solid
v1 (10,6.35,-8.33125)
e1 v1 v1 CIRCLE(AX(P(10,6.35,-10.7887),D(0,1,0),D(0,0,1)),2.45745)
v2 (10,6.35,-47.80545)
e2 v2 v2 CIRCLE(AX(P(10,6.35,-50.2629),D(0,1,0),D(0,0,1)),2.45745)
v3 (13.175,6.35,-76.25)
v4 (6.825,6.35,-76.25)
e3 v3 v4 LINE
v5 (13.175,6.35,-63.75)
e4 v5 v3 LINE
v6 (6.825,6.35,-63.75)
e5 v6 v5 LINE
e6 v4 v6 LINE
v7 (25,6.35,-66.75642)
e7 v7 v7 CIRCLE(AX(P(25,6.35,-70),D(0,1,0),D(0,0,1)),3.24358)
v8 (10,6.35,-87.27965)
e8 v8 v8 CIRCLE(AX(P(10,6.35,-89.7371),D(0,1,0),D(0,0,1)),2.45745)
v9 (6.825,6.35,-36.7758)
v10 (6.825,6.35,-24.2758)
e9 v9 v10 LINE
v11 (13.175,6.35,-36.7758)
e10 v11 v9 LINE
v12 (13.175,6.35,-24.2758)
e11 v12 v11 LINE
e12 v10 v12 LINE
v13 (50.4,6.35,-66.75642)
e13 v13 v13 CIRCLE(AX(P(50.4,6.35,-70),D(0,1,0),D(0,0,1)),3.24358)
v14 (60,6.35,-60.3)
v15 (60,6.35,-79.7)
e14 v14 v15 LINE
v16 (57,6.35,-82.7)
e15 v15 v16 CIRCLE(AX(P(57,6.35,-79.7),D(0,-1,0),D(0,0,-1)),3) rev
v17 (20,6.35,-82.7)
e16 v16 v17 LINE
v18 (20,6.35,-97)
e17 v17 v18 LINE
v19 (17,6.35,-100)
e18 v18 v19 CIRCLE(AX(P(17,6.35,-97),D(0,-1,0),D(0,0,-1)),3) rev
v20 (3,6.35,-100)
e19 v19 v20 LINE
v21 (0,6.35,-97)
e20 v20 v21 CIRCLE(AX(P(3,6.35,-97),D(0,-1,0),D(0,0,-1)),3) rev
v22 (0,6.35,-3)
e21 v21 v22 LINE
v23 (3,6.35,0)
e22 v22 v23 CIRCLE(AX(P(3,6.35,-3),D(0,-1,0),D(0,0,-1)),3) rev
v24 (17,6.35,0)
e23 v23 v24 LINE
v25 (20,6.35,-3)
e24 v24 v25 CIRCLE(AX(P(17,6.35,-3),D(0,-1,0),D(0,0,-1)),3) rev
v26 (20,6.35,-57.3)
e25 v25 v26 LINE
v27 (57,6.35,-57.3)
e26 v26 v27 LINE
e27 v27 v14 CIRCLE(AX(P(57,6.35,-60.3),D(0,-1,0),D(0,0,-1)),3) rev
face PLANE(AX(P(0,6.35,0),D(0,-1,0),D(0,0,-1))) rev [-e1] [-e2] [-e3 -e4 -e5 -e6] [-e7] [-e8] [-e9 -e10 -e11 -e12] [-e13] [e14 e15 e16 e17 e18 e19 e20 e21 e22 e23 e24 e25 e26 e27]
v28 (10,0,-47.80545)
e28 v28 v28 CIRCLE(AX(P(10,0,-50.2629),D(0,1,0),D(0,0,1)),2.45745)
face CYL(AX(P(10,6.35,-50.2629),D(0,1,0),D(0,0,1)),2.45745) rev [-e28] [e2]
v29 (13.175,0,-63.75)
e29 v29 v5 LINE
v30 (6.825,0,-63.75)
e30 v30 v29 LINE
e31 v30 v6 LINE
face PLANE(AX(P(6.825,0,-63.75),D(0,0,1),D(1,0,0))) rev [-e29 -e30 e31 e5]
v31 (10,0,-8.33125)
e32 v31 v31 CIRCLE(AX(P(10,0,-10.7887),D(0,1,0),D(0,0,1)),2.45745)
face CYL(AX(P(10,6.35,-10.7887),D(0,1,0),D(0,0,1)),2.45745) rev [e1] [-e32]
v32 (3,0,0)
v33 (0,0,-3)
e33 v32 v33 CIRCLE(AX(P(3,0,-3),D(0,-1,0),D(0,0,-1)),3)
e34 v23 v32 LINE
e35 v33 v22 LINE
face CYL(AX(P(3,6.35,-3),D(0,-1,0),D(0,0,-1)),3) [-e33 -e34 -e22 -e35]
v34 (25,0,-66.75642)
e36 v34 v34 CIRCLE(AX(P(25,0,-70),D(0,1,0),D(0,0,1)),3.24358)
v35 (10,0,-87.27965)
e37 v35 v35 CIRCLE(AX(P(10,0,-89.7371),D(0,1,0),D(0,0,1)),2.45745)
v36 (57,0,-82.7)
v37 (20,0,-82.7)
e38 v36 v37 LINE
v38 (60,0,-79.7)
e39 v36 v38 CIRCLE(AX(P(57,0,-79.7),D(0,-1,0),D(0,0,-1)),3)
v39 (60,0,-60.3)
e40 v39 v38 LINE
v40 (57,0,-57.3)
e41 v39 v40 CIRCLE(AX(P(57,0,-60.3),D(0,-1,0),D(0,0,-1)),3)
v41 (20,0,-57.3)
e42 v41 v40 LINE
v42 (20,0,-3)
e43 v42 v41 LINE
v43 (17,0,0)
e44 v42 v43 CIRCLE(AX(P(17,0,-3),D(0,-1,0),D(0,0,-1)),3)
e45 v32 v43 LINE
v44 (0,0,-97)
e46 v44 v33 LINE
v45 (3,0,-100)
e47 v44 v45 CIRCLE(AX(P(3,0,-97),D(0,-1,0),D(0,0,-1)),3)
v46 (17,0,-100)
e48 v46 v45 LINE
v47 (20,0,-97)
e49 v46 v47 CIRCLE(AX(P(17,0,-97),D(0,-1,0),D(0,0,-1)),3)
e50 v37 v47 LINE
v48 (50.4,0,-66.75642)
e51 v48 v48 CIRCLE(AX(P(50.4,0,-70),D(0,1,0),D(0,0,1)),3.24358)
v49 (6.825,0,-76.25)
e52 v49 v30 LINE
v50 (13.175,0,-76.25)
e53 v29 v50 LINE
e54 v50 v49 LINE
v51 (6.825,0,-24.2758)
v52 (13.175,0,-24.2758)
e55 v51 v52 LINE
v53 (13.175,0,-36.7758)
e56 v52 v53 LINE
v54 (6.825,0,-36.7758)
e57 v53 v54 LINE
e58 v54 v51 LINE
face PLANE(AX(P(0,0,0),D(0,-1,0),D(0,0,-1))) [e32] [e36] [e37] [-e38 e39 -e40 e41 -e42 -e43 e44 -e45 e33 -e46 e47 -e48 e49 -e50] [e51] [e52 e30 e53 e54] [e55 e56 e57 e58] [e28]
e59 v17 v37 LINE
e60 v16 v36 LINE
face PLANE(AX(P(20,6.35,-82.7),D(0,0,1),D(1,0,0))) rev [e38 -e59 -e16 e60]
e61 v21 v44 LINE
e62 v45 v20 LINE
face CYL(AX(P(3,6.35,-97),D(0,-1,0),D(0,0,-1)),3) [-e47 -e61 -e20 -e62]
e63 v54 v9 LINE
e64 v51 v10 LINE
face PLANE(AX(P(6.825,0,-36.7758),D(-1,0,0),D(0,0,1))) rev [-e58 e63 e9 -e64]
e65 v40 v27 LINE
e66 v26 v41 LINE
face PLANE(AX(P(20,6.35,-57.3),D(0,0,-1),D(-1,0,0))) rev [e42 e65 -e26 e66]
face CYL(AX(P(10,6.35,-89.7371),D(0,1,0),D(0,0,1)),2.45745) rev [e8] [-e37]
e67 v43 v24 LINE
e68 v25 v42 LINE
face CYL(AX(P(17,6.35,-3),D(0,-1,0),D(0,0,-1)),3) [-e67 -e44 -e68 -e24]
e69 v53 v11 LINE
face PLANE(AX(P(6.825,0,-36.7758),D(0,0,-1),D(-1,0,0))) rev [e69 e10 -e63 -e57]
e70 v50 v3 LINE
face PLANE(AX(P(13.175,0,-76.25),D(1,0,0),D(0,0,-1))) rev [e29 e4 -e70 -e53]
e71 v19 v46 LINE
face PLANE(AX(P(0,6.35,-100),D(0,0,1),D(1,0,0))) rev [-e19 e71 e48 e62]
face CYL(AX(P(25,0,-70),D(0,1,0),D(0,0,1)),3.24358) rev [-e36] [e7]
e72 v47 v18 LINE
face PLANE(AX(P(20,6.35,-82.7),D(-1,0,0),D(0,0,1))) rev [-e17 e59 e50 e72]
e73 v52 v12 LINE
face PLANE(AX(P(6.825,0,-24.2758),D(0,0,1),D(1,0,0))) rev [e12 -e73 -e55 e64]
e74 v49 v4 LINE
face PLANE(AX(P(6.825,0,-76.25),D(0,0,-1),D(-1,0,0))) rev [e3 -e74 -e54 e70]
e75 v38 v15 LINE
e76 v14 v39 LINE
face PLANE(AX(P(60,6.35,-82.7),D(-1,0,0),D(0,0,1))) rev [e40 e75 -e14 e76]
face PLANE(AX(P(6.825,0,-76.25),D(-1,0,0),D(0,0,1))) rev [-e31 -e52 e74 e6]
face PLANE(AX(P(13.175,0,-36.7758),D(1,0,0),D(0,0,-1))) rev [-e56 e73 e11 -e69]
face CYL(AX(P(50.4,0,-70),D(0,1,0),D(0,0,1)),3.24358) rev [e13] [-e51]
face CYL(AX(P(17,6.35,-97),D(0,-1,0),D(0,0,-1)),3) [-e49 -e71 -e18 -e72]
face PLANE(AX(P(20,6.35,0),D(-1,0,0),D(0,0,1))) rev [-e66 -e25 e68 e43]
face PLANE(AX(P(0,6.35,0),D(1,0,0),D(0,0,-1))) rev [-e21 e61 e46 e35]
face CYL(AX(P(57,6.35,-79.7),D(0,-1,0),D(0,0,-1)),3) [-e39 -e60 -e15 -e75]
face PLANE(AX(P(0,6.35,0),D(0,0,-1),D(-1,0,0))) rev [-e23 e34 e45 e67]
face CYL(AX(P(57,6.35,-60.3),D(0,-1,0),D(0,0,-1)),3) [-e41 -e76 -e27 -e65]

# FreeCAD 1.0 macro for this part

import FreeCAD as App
import Part
import Sketcher
from FreeCAD import Vector
Q = App.Units.Quantity


def edges_at(feature, points):
    """Names of the edges that pass closest to the given points."""
    edges = feature.Shape.Edges
    near = lambda p: min(range(len(edges)), key=lambda i: edges[i].distToShape(Part.Vertex(*p))[0])
    return sorted({f"Edge{near(p) + 1}" for p in points})


def add_polygon(sketch, points):
    """Adds a closed chain of lines whose ends are joined by coincident constraints."""
    first, n = sketch.GeometryCount, len(points)
    for a, b in zip(points, points[1:] + points[:1]):
        sketch.addGeometry(Part.LineSegment(App.Vector(*a, 0), App.Vector(*b, 0)), False)
    for i in range(n):
        sketch.addConstraint(Sketcher.Constraint("Coincident", first + i, 2, first + (i + 1) % n, 1))

doc = App.newDocument("Part")
params = doc.addObject("Spreadsheet::Sheet", "Params")
for row, (alias, value) in enumerate([
    ("sketch1_width", "20 mm"),
    ("sketch1_width2", "40 mm"),
    ("sketch1_height", "100 mm"),
    ("sketch1_height2", "57.3 mm"),
    ("sketch1_height3", "25.4 mm"),
    ("pad1_length", "6.35 mm"),
    ("sketch2_height", "12.5 mm"),
    ("sketch2_width", "6.35 mm"),
    ("hole_diameter", "4.9149 mm"),
    ("fillet_radius", "3 mm"),
], start=1):
    params.set(f"A{row}", alias)
    params.set(f"B{row}", "=" + value)
    params.setAlias(f"B{row}", alias)

body = doc.addObject("PartDesign::Body", "Body")

sketch1 = body.newObject("Sketcher::SketchObject", "Sketch")
sketch1.AttachmentSupport = (doc.getObject("XZ_Plane"), [""])
sketch1.MapMode = "FlatFace"
add_polygon(sketch1, [(0, 0), (20, 0), (20, -57.3), (60, -57.3), (60, -82.7), (20, -82.7), (20, -100), (0, -100)])
sketch1.addConstraint([
    Sketcher.Constraint("Horizontal", 0),
    Sketcher.Constraint("Vertical", 1),
    Sketcher.Constraint("Horizontal", 2),
    Sketcher.Constraint("Vertical", 3),
    Sketcher.Constraint("Horizontal", 4),
    Sketcher.Constraint("Vertical", 5),
    Sketcher.Constraint("Horizontal", 6),
    Sketcher.Constraint("Vertical", 7),
    Sketcher.Constraint("Coincident", 7, 2, -1, 1),
    Sketcher.Constraint("Vertical", 1, 2, 4, 2),
    Sketcher.Constraint("DistanceX", 0, 1, 0, 2, Q("20 mm")),
    Sketcher.Constraint("DistanceX", 2, 1, 2, 2, Q("40 mm")),
    Sketcher.Constraint("DistanceY", 7, 1, 7, 2, Q("100 mm")),
    Sketcher.Constraint("DistanceY", 1, 2, 1, 1, Q("57.3 mm")),
    Sketcher.Constraint("DistanceY", 3, 2, 3, 1, Q("25.4 mm")),
])
sketch1.setExpression("Constraints[18]", "Params.sketch1_width")
sketch1.setExpression("Constraints[19]", "Params.sketch1_width2")
sketch1.setExpression("Constraints[20]", "Params.sketch1_height")
sketch1.setExpression("Constraints[21]", "Params.sketch1_height2")
sketch1.setExpression("Constraints[22]", "Params.sketch1_height3")
pad1 = body.newObject("PartDesign::Pad", "Pad")
pad1.Profile = sketch1
pad1.setExpression("Length", "Params.pad1_length")
pad1.Reversed = True

sketch2 = body.newObject("Sketcher::SketchObject", "Sketch001")
sketch2.AttachmentSupport = (doc.getObject("XZ_Plane"), [""])
sketch2.MapMode = "FlatFace"
sketch2.AttachmentOffset = App.Placement(Vector(0, 0, -6.35), App.Rotation())
add_polygon(sketch2, [(6.825, -76.25), (6.825, -63.75), (13.175, -63.75), (13.175, -76.25)])
add_polygon(sketch2, [(6.825, -36.7758), (6.825, -24.2758), (13.175, -24.2758), (13.175, -36.7758)])
sketch2.addConstraint([
    Sketcher.Constraint("Vertical", 0),
    Sketcher.Constraint("Horizontal", 1),
    Sketcher.Constraint("Vertical", 2),
    Sketcher.Constraint("Horizontal", 3),
    Sketcher.Constraint("Vertical", 4),
    Sketcher.Constraint("Horizontal", 5),
    Sketcher.Constraint("Vertical", 6),
    Sketcher.Constraint("Horizontal", 7),
    Sketcher.Constraint("Vertical", 3, 2, 4, 2),
    Sketcher.Constraint("Vertical", 2, 2, 5, 2),
    Sketcher.Constraint("Equal", 2, 4),
    Sketcher.Constraint("DistanceY", 0, 1, 0, 2, Q("12.5 mm")),
    Sketcher.Constraint("DistanceX", 1, 1, 1, 2, Q("6.35 mm")),
    Sketcher.Constraint("DistanceY", 0, 2, -1, 1, Q("63.75 mm")),
    Sketcher.Constraint("DistanceX", -1, 1, 0, 2, Q("6.825 mm")),
    Sketcher.Constraint("DistanceY", 4, 2, -1, 1, Q("24.2758 mm")),
])
sketch2.setExpression("Constraints[19]", "Params.sketch2_height")
sketch2.setExpression("Constraints[20]", "Params.sketch2_width")
pocket1 = body.newObject("PartDesign::Pocket", "Pocket")
pocket1.Profile = sketch2
pocket1.Type = "ThroughAll"
pocket1.Reversed = True

sketch3 = body.newObject("Sketcher::SketchObject", "Sketch002")
sketch3.AttachmentSupport = (doc.getObject("XZ_Plane"), [""])
sketch3.MapMode = "FlatFace"
sketch3.AttachmentOffset = App.Placement(Vector(0, 0, -6.35), App.Rotation())
sketch3.addGeometry([
    Part.Circle(Vector(10, -89.7371, 0), Vector(0, 0, 1), 2.45745),
    Part.Circle(Vector(10, -50.2629, 0), Vector(0, 0, 1), 2.45745),
    Part.Circle(Vector(10, -10.7887, 0), Vector(0, 0, 1), 2.45745),
], False)
sketch3.addConstraint([
    Sketcher.Constraint("Equal", 0, 1),
    Sketcher.Constraint("Equal", 1, 2),
    Sketcher.Constraint("Vertical", 0, 3, 1, 3),
    Sketcher.Constraint("Vertical", 1, 3, 2, 3),
    Sketcher.Constraint("DistanceX", -1, 1, 0, 3, Q("10 mm")),
    Sketcher.Constraint("Diameter", 0, Q("4.9149 mm")),
    Sketcher.Constraint("DistanceY", 0, 3, -1, 1, Q("89.7371 mm")),
    Sketcher.Constraint("DistanceY", 1, 3, -1, 1, Q("50.2629 mm")),
    Sketcher.Constraint("DistanceY", 2, 3, -1, 1, Q("10.7887 mm")),
])
doc.recompute()
hole = body.newObject("PartDesign::Hole", "Hole")
hole.Profile = sketch3
hole.ThreadType = "None"
hole.setExpression("Diameter", "Params.hole_diameter")
hole.DepthType = "ThroughAll"
hole.Reversed = True

sketch4 = body.newObject("Sketcher::SketchObject", "Sketch003")
sketch4.AttachmentSupport = (doc.getObject("XZ_Plane"), [""])
sketch4.MapMode = "FlatFace"
sketch4.AttachmentOffset = App.Placement(Vector(0, 0, -6.35), App.Rotation())
sketch4.addGeometry([
    Part.Circle(Vector(25, -70, 0), Vector(0, 0, 1), 3.24358),
    Part.Circle(Vector(50.4, -70, 0), Vector(0, 0, 1), 3.24358),
], False)
sketch4.addConstraint([
    Sketcher.Constraint("Equal", 0, 1),
    Sketcher.Constraint("Horizontal", 0, 3, 1, 3),
    Sketcher.Constraint("DistanceX", -1, 1, 0, 3, Q("25 mm")),
    Sketcher.Constraint("DistanceY", 0, 3, -1, 1, Q("70 mm")),
    Sketcher.Constraint("DistanceX", -1, 1, 1, 3, Q("50.4 mm")),
    Sketcher.Constraint("Diameter", 0, Q("6.48716 mm")),
])
pocket2 = body.newObject("PartDesign::Pocket", "Pocket001")
pocket2.Profile = sketch4
pocket2.Type = "ThroughAll"
pocket2.Reversed = True
doc.recompute()

fillet = body.newObject("PartDesign::Fillet", "Fillet")
fillet.Base = (pocket2, edges_at(pocket2, [
    (0, 3.175, -100),
    (20, 3.175, -100),
    (60, 3.175, -82.7),
    (60, 3.175, -57.3),
    (20, 3.175, 0),
    (0, 3.175, 0),
]))
fillet.setExpression("Radius", "Params.fillet_radius")

doc.recompute()
